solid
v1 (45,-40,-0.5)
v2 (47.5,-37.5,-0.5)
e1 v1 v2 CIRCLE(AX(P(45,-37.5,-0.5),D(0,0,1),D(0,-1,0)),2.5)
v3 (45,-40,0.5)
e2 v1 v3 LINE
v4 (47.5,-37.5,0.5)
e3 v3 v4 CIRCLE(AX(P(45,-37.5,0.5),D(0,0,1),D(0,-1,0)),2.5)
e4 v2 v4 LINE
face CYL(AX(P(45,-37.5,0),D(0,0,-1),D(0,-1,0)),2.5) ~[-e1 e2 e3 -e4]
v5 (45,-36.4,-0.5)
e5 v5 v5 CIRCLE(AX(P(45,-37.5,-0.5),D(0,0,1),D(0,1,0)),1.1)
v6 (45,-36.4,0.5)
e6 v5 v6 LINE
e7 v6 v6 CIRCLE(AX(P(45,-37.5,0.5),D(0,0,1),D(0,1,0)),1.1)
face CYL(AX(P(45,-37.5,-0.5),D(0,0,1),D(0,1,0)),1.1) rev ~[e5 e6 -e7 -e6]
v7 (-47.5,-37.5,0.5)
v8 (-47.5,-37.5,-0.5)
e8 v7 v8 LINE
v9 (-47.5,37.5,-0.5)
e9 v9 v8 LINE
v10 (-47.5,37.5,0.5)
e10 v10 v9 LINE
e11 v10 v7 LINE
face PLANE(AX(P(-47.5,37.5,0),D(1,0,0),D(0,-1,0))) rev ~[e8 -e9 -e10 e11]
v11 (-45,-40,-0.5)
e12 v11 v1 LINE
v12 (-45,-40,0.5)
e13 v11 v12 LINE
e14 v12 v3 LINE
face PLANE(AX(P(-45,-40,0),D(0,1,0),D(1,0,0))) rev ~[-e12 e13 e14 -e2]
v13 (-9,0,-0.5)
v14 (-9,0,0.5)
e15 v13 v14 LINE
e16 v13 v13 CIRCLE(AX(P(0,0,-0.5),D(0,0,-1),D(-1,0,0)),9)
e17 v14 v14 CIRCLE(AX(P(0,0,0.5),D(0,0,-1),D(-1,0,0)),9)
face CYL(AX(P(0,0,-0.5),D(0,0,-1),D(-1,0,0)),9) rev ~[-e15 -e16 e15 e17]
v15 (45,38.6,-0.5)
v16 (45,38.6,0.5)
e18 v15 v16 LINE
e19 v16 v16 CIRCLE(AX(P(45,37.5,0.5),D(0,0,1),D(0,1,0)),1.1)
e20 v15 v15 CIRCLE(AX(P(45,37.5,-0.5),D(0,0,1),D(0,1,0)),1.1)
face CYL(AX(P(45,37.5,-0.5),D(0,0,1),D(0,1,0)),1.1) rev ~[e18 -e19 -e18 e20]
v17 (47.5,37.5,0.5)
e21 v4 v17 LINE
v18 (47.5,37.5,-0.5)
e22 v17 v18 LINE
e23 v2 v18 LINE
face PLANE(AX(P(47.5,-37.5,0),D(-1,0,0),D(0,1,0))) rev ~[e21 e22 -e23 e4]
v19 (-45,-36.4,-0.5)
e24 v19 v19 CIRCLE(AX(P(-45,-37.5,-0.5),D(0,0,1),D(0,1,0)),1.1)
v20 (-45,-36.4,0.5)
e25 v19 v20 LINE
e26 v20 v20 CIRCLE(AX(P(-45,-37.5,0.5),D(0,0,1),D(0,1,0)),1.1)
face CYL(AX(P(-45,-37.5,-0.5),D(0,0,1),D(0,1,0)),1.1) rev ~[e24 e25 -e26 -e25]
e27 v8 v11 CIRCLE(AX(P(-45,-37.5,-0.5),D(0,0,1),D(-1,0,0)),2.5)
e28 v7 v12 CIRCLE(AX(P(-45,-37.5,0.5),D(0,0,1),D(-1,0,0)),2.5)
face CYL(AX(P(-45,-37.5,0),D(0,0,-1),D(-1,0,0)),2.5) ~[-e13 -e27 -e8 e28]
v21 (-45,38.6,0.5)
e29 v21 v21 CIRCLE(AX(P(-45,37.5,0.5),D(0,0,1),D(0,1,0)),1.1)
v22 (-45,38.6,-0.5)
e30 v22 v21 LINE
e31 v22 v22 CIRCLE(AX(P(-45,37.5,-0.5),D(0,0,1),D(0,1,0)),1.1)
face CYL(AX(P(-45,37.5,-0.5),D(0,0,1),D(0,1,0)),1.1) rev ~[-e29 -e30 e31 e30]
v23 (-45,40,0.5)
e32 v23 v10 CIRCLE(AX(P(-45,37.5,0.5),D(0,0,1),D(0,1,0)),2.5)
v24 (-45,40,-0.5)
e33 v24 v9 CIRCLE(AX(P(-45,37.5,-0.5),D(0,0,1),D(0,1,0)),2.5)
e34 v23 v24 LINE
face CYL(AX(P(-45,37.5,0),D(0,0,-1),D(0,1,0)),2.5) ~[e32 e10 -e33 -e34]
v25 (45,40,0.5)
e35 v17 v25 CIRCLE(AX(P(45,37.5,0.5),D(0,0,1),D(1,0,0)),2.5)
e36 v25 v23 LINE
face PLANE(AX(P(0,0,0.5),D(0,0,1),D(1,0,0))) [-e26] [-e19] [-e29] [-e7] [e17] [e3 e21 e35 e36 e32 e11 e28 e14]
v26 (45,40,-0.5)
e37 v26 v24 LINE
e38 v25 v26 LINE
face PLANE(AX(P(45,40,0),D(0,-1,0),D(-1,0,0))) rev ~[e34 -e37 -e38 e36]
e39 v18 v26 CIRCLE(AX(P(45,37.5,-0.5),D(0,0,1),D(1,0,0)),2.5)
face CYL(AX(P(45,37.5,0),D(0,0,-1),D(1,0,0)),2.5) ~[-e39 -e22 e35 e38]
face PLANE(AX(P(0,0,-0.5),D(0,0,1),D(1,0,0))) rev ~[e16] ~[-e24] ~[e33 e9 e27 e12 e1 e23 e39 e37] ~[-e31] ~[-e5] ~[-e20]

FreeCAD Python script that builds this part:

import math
import FreeCAD as App
import Part
import Sketcher

doc = App.newDocument("Part")
body = doc.addObject("PartDesign::Body", "Body")

# Sketch on XY plane
sketch1 = body.newObject("Sketcher::SketchObject", "Sketch")
sketch1.AttachmentSupport = (doc.getObject("XY_Plane"), [""])
sketch1.MapMode = "FlatFace"
sketch1.addGeometry([
    Part.ArcOfCircle(Part.Circle(App.Vector(-45, -37.5, 0), App.Vector(0, 0, 1), 2.5), math.radians(180), math.radians(270)),  # 0
    Part.LineSegment(App.Vector(-45, -40, 0), App.Vector(45, -40, 0)),  # 1
    Part.ArcOfCircle(Part.Circle(App.Vector(45, -37.5, 0), App.Vector(0, 0, 1), 2.5), math.radians(-90), math.radians(0)),  # 2
    Part.LineSegment(App.Vector(47.5, -37.5, 0), App.Vector(47.5, 37.5, 0)),  # 3
    Part.ArcOfCircle(Part.Circle(App.Vector(45, 37.5, 0), App.Vector(0, 0, 1), 2.5), math.radians(0), math.radians(90)),  # 4
    Part.LineSegment(App.Vector(45, 40, 0), App.Vector(-45, 40, 0)),  # 5
    Part.ArcOfCircle(Part.Circle(App.Vector(-45, 37.5, 0), App.Vector(0, 0, 1), 2.5), math.radians(90), math.radians(180)),  # 6
    Part.LineSegment(App.Vector(-47.5, 37.5, 0), App.Vector(-47.5, -37.5, 0)),  # 7
], False)
sketch1.addConstraint([
    Sketcher.Constraint("Tangent", 0, 2, 1, 1),
    Sketcher.Constraint("Tangent", 1, 2, 2, 1),
    Sketcher.Constraint("Tangent", 2, 2, 3, 1),
    Sketcher.Constraint("Tangent", 3, 2, 4, 1),
    Sketcher.Constraint("Tangent", 4, 2, 5, 1),
    Sketcher.Constraint("Tangent", 5, 2, 6, 1),
    Sketcher.Constraint("Tangent", 6, 2, 7, 1),
    Sketcher.Constraint("Tangent", 7, 2, 0, 1),
    Sketcher.Constraint("Horizontal", 1),
    Sketcher.Constraint("Vertical", 3),
    Sketcher.Constraint("Horizontal", 5),
    Sketcher.Constraint("Vertical", 7),
    Sketcher.Constraint("Equal", 0, 2),
    Sketcher.Constraint("Equal", 2, 4),
    Sketcher.Constraint("Equal", 4, 6),
    Sketcher.Constraint("Symmetric", 0, 3, 4, 3, -1, 1),
    Sketcher.Constraint("Radius", 0, 2.5),
    Sketcher.Constraint("DistanceY", 1, 2, 4, 2, 80.0),
    Sketcher.Constraint("DistanceX", 1, 1, 1, 2, 90.0),
])
pad1 = body.newObject("PartDesign::Pad", "Pad")
pad1.Profile = sketch1
pad1.Length = 1
pad1.Midplane = True

# Sketch on XY plane
sketch2 = body.newObject("Sketcher::SketchObject", "Sketch001")
sketch2.AttachmentSupport = (doc.getObject("XY_Plane"), [""])
sketch2.MapMode = "FlatFace"
sketch2.AttachmentOffset = App.Placement(App.Vector(0, 0, -0.5), App.Rotation())
sketch2.addGeometry(Part.Circle(App.Vector(0, 0, 0), App.Vector(0, 0, 1), 9), False)
sketch2.addConstraint([
    Sketcher.Constraint("Coincident", 0, 3, -1, 1),
    Sketcher.Constraint("Diameter", 0, 18.0),
])
pocket1 = body.newObject("PartDesign::Pocket", "Pocket")
pocket1.Profile = sketch2
pocket1.Type = "ThroughAll"
pocket1.Reversed = True

# Sketch on XY plane
sketch3 = body.newObject("Sketcher::SketchObject", "Sketch002")
sketch3.AttachmentSupport = (doc.getObject("XY_Plane"), [""])
sketch3.MapMode = "FlatFace"
sketch3.AttachmentOffset = App.Placement(App.Vector(0, 0, -0.5), App.Rotation())
sketch3.addGeometry([
    Part.Circle(App.Vector(-45, -37.5, 0), App.Vector(0, 0, 1), 1.1),
    Part.Circle(App.Vector(45, -37.5, 0), App.Vector(0, 0, 1), 1.1),
    Part.Circle(App.Vector(45, 37.5, 0), App.Vector(0, 0, 1), 1.1),
    Part.Circle(App.Vector(-45, 37.5, 0), App.Vector(0, 0, 1), 1.1),
], False)
sketch3.addConstraint([
    Sketcher.Constraint("Equal", 0, 1),
    Sketcher.Constraint("Equal", 1, 2),
    Sketcher.Constraint("Equal", 2, 3),
    Sketcher.Constraint("Symmetric", 0, 3, 2, 3, -1, 1),
    Sketcher.Constraint("Symmetric", 1, 3, 3, 3, -1, 1),
    Sketcher.Constraint("Symmetric", 0, 3, 1, 3, -2),
    Sketcher.Constraint("Diameter", 0, 2.2),
    Sketcher.Constraint("DistanceX", 0, 3, -1, 1, 45.0),
    Sketcher.Constraint("DistanceY", 1, 3, 2, 3, 75.0),
])
doc.recompute()
hole = body.newObject("PartDesign::Hole", "Hole")
hole.Profile = sketch3
hole.ThreadType = "None"
hole.Diameter = 2.2
hole.DepthType = "ThroughAll"
hole.Reversed = True

doc.recompute()
